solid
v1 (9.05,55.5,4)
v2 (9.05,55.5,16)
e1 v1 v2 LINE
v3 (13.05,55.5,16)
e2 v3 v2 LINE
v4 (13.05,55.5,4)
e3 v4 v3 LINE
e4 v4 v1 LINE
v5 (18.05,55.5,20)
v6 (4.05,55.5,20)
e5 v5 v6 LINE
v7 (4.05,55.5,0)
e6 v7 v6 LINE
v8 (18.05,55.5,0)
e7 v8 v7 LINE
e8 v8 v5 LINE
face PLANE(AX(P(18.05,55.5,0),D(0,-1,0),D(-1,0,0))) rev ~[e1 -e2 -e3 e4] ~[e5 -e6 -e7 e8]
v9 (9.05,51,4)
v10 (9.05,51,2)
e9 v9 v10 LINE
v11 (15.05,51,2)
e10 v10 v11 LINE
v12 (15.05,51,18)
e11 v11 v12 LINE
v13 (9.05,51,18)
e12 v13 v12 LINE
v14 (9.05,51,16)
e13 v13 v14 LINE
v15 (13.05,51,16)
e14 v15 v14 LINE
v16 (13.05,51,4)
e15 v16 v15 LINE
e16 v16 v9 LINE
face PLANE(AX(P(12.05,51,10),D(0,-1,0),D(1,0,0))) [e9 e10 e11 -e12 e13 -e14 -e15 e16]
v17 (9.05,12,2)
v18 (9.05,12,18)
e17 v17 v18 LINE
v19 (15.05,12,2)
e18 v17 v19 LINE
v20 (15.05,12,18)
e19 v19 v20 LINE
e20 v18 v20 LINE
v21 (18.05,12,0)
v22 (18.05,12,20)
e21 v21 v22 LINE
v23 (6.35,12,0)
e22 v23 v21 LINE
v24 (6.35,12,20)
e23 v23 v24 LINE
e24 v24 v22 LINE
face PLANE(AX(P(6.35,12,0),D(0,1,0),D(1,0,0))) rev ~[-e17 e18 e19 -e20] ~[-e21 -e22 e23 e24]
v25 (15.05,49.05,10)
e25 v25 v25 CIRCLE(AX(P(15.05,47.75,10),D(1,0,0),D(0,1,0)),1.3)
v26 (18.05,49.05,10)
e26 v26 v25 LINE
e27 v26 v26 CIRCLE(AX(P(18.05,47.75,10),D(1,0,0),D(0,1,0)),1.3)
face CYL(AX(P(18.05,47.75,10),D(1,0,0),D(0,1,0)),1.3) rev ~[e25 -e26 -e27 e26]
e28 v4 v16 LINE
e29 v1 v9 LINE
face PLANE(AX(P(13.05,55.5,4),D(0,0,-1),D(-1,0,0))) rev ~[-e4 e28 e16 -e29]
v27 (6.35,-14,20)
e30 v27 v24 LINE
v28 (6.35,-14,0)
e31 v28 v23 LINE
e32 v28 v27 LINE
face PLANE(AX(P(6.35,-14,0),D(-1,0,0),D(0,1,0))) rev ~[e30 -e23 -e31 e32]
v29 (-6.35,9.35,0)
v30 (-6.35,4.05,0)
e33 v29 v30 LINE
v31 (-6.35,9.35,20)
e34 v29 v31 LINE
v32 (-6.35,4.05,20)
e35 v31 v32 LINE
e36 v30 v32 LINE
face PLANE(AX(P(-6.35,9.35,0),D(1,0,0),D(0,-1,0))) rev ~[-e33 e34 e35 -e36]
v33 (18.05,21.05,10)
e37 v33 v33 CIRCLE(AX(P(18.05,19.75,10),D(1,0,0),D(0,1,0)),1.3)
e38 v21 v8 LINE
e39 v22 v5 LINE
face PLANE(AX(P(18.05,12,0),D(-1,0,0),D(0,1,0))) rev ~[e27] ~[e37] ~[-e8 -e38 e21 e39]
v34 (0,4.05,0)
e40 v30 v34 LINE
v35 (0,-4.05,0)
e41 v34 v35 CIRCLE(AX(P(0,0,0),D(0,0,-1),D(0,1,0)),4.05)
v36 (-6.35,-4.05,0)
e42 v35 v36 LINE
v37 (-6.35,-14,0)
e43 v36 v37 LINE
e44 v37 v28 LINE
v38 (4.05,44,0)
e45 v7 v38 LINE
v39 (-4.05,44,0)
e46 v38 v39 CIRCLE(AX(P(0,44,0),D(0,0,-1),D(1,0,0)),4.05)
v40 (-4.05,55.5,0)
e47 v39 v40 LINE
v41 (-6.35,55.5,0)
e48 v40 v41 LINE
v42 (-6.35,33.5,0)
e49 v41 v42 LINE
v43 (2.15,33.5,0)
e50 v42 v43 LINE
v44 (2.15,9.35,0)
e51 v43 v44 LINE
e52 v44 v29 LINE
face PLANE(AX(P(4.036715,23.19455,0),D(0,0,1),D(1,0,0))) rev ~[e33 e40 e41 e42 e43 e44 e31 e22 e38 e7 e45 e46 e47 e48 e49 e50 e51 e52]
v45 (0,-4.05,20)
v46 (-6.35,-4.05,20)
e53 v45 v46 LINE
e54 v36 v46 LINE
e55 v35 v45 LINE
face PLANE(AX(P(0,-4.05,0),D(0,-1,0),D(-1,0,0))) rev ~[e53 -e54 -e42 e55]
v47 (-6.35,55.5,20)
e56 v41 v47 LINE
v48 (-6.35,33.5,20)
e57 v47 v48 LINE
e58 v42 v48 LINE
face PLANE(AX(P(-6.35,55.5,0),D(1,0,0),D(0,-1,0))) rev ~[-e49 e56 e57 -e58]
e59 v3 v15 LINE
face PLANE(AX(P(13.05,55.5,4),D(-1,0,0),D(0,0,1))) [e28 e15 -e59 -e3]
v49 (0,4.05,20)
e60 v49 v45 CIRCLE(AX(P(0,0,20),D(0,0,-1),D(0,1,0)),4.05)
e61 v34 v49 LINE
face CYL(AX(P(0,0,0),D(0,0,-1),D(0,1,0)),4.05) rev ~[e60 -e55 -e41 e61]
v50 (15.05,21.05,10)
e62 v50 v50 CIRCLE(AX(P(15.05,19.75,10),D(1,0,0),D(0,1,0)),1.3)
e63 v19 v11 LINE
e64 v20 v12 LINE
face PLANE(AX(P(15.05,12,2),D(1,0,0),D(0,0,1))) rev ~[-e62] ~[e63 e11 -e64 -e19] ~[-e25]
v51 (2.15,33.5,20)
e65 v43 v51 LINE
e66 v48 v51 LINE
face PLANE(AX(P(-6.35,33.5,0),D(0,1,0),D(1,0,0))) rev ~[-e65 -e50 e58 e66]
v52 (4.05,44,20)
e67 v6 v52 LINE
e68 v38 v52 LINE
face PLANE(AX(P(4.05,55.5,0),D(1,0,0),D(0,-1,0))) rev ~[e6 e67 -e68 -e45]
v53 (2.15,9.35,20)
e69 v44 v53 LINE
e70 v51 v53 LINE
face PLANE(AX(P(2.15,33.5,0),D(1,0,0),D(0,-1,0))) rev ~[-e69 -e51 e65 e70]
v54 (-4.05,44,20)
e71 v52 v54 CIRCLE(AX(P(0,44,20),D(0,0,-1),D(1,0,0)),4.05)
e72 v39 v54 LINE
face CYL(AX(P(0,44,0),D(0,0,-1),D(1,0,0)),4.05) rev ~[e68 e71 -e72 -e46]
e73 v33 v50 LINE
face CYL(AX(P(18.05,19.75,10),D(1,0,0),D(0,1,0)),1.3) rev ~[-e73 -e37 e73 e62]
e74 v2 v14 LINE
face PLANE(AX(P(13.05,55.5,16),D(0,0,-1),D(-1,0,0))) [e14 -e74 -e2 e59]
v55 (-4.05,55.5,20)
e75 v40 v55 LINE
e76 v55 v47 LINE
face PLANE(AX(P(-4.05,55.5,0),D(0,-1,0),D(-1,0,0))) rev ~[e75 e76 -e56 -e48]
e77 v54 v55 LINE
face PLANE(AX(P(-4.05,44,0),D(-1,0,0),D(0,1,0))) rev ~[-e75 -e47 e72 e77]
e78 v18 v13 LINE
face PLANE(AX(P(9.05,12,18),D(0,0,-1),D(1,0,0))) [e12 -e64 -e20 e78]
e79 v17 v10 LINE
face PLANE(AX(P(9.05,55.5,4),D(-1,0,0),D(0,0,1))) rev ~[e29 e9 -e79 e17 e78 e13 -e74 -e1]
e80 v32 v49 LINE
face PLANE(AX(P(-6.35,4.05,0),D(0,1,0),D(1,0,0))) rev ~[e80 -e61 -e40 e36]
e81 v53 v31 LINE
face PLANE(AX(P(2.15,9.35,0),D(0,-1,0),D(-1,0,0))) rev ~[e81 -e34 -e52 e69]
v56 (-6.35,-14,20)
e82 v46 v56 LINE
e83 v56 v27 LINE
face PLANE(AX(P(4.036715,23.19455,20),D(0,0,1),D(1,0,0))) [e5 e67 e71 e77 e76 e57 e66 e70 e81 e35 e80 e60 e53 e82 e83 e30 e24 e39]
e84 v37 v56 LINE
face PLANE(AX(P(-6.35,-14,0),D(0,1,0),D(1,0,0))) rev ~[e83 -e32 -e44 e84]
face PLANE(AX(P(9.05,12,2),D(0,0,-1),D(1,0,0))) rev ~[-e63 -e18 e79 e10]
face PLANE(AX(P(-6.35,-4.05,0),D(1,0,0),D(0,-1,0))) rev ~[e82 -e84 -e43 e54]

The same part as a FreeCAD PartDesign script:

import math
import FreeCAD as App
import Part
import Sketcher

V = App.Vector
Q = App.Units.Quantity


def add_polygon(sketch, points):
    """Adds a closed chain of lines whose ends are joined by coincident constraints."""
    first, n = sketch.GeometryCount, len(points)
    for a, b in zip(points, points[1:] + points[:1]):
        sketch.addGeometry(Part.LineSegment(App.Vector(*a, 0), App.Vector(*b, 0)), False)
    for i in range(n):
        sketch.addConstraint(Sketcher.Constraint("Coincident", first + i, 2, first + (i + 1) % n, 1))

doc = App.newDocument("Part")
body = doc.addObject("PartDesign::Body", "Body")

sketch1 = body.newObject("Sketcher::SketchObject", "Sketch")
sketch1.AttachmentSupport = (doc.getObject("XY_Plane"), [""])
sketch1.MapMode = "FlatFace"
sketch1.addGeometry(Part.ArcOfCircle(Part.Circle(V(0, 0, 0), V(0, 0, 1), 4), math.radians(-90), math.radians(90)), False)
sketch1.addGeometry(Part.LineSegment(V(0, -4, 0), V(-6.3, -4, 0)), False)
sketch1.addGeometry(Part.LineSegment(V(-6.3, -4, 0), V(-6.3, -14, 0)), False)
sketch1.addGeometry(Part.LineSegment(V(-6.3, -14, 0), V(6.3, -14, 0)), False)
sketch1.addGeometry(Part.LineSegment(V(6.3, -14, 0), V(6.3, 12, 0)), False)
sketch1.addGeometry(Part.LineSegment(V(6.3, 12, 0), V(18.1, 12, 0)), False)
sketch1.addGeometry(Part.LineSegment(V(18.1, 12, 0), V(18.1, 55.5, 0)), False)
sketch1.addGeometry(Part.LineSegment(V(18.1, 55.5, 0), V(4, 55.5, 0)), False)
sketch1.addGeometry(Part.LineSegment(V(4, 55.5, 0), V(4, 44, 0)), False)
sketch1.addGeometry(Part.ArcOfCircle(Part.Circle(V(0, 44, 0), V(0, 0, 1), 4), math.radians(180), math.radians(360)), False)
sketch1.addGeometry(Part.LineSegment(V(-4, 44, 0), V(-4, 55.5, 0)), False)
sketch1.addGeometry(Part.LineSegment(V(-4, 55.5, 0), V(-6.3, 55.5, 0)), False)
sketch1.addGeometry(Part.LineSegment(V(-6.3, 55.5, 0), V(-6.3, 33.5, 0)), False)
sketch1.addGeometry(Part.LineSegment(V(-6.3, 33.5, 0), V(2.1, 33.5, 0)), False)
sketch1.addGeometry(Part.LineSegment(V(2.1, 33.5, 0), V(2.1, 9.3, 0)), False)
sketch1.addGeometry(Part.LineSegment(V(2.1, 9.3, 0), V(-6.3, 9.3, 0)), False)
sketch1.addGeometry(Part.LineSegment(V(-6.3, 9.3, 0), V(-6.3, 4, 0)), False)
sketch1.addGeometry(Part.LineSegment(V(-6.3, 4, 0), V(0, 4, 0)), False)
sketch1.addConstraint(Sketcher.Constraint("Tangent", 0, 1, 1, 1))
sketch1.addConstraint(Sketcher.Constraint("Coincident", 1, 2, 2, 1))
sketch1.addConstraint(Sketcher.Constraint("Coincident", 2, 2, 3, 1))
sketch1.addConstraint(Sketcher.Constraint("Coincident", 3, 2, 4, 1))
sketch1.addConstraint(Sketcher.Constraint("Coincident", 4, 2, 5, 1))
sketch1.addConstraint(Sketcher.Constraint("Coincident", 5, 2, 6, 1))
sketch1.addConstraint(Sketcher.Constraint("Coincident", 6, 2, 7, 1))
sketch1.addConstraint(Sketcher.Constraint("Coincident", 7, 2, 8, 1))
sketch1.addConstraint(Sketcher.Constraint("Tangent", 8, 2, 9, 2))
sketch1.addConstraint(Sketcher.Constraint("Tangent", 9, 1, 10, 1))
sketch1.addConstraint(Sketcher.Constraint("Coincident", 10, 2, 11, 1))
sketch1.addConstraint(Sketcher.Constraint("Coincident", 11, 2, 12, 1))
sketch1.addConstraint(Sketcher.Constraint("Coincident", 12, 2, 13, 1))
sketch1.addConstraint(Sketcher.Constraint("Coincident", 13, 2, 14, 1))
sketch1.addConstraint(Sketcher.Constraint("Coincident", 14, 2, 15, 1))
sketch1.addConstraint(Sketcher.Constraint("Coincident", 15, 2, 16, 1))
sketch1.addConstraint(Sketcher.Constraint("Coincident", 16, 2, 17, 1))
sketch1.addConstraint(Sketcher.Constraint("Tangent", 17, 2, 0, 2))
sketch1.addConstraint(Sketcher.Constraint("Horizontal", 1))
sketch1.addConstraint(Sketcher.Constraint("Vertical", 2))
sketch1.addConstraint(Sketcher.Constraint("Horizontal", 3))
sketch1.addConstraint(Sketcher.Constraint("Vertical", 4))
sketch1.addConstraint(Sketcher.Constraint("Horizontal", 5))
sketch1.addConstraint(Sketcher.Constraint("Vertical", 6))
sketch1.addConstraint(Sketcher.Constraint("Horizontal", 7))
sketch1.addConstraint(Sketcher.Constraint("Vertical", 8))
sketch1.addConstraint(Sketcher.Constraint("Vertical", 10))
sketch1.addConstraint(Sketcher.Constraint("Horizontal", 11))
sketch1.addConstraint(Sketcher.Constraint("Vertical", 12))
sketch1.addConstraint(Sketcher.Constraint("Horizontal", 13))
sketch1.addConstraint(Sketcher.Constraint("Vertical", 14))
sketch1.addConstraint(Sketcher.Constraint("Horizontal", 15))
sketch1.addConstraint(Sketcher.Constraint("Vertical", 16))
sketch1.addConstraint(Sketcher.Constraint("Horizontal", 17))
sketch1.addConstraint(Sketcher.Constraint("Coincident", 0, 3, -1, 1))
sketch1.addConstraint(Sketcher.Constraint("Equal", 0, 9))
sketch1.addConstraint(Sketcher.Constraint("Symmetric", 7, 2, 10, 2, -2))
sketch1.addConstraint(Sketcher.Constraint("Vertical", 2, 2, 11, 2))
sketch1.addConstraint(Sketcher.Constraint("Vertical", 12, 2, 15, 2))
sketch1.addConstraint(Sketcher.Constraint("DistanceX", 7, 2, 7, 1, Q("14 mm")))
sketch1.addConstraint(Sketcher.Constraint("DistanceY", 4, 1, 4, 2, Q("26 mm")))
sketch1.addConstraint(Sketcher.Constraint("DistanceY", 12, 2, 12, 1, Q("22 mm")))
sketch1.addConstraint(Sketcher.Constraint("Radius", 0, Q("4.05 mm")))
sketch1.addConstraint(Sketcher.Constraint("DistanceX", 3, 1, 3, 2, Q("12.7 mm")))
sketch1.addConstraint(Sketcher.Constraint("DistanceX", 5, 1, 5, 2, Q("11.7 mm")))
sketch1.addConstraint(Sketcher.Constraint("DistanceX", 13, 1, 13, 2, Q("8.5 mm")))
sketch1.addConstraint(Sketcher.Constraint("DistanceY", 6, 1, 6, 2, Q("43.5 mm")))
sketch1.addConstraint(Sketcher.Constraint("DistanceY", 8, 2, 8, 1, Q("11.5 mm")))
sketch1.addConstraint(Sketcher.Constraint("DistanceY", 16, 2, 16, 1, Q("5.3 mm")))
sketch1.addConstraint(Sketcher.Constraint("DistanceY", -1, 1, 9, 3, Q("44 mm")))
pad1 = body.newObject("PartDesign::Pad", "Pad")
pad1.Profile = sketch1
pad1.Length = 20

sketch2 = body.newObject("Sketcher::SketchObject", "Sketch001")
sketch2.AttachmentSupport = (doc.getObject("XZ_Plane"), [""])
sketch2.MapMode = "FlatFace"
sketch2.AttachmentOffset = App.Placement(V(0, 0, -55.5), App.Rotation())
add_polygon(sketch2, [(13.1, 16), (13.1, 4), (9.1, 4), (9.1, 16)])
sketch2.addConstraint(Sketcher.Constraint("Vertical", 0))
sketch2.addConstraint(Sketcher.Constraint("Horizontal", 1))
sketch2.addConstraint(Sketcher.Constraint("Vertical", 2))
sketch2.addConstraint(Sketcher.Constraint("Horizontal", 3))
sketch2.addConstraint(Sketcher.Constraint("DistanceX", 1, 2, 1, 1, Q("4 mm")))
sketch2.addConstraint(Sketcher.Constraint("DistanceY", 0, 2, 0, 1, Q("12 mm")))
sketch2.addConstraint(Sketcher.Constraint("DistanceY", -1, 1, 0, 2, Q("4 mm")))
sketch2.addConstraint(Sketcher.Constraint("DistanceX", -1, 1, 0, 2, Q("13.05 mm")))
pocket1 = body.newObject("PartDesign::Pocket", "Pocket")
pocket1.Profile = sketch2
pocket1.Length = 59
pocket1.Reversed = True

sketch3 = body.newObject("Sketcher::SketchObject", "Sketch002")
sketch3.AttachmentSupport = (doc.getObject("XZ_Plane"), [""])
sketch3.MapMode = "FlatFace"
sketch3.AttachmentOffset = App.Placement(V(0, 0, -12), App.Rotation())
add_polygon(sketch3, [(9, 2), (15, 2), (15, 18), (9, 18)])
sketch3.addConstraint(Sketcher.Constraint("Horizontal", 0))
sketch3.addConstraint(Sketcher.Constraint("Vertical", 1))
sketch3.addConstraint(Sketcher.Constraint("Horizontal", 2))
sketch3.addConstraint(Sketcher.Constraint("Vertical", 3))
sketch3.addConstraint(Sketcher.Constraint("DistanceX", 0, 1, 0, 2, Q("6 mm")))
sketch3.addConstraint(Sketcher.Constraint("DistanceY", 1, 1, 1, 2, Q("16 mm")))
sketch3.addConstraint(Sketcher.Constraint("DistanceY", -1, 1, 0, 2, Q("2 mm")))
sketch3.addConstraint(Sketcher.Constraint("DistanceX", -1, 1, 0, 2, Q("15.05 mm")))
pocket2 = body.newObject("PartDesign::Pocket", "Pocket001")
pocket2.Profile = sketch3
pocket2.Length = 39

sketch4 = body.newObject("Sketcher::SketchObject", "Sketch003")
sketch4.AttachmentSupport = (doc.getObject("YZ_Plane"), [""])
sketch4.MapMode = "FlatFace"
sketch4.AttachmentOffset = App.Placement(V(0, 0, 18.05), App.Rotation())
sketch4.addGeometry(Part.Circle(V(47.8, 10, 0), V(0, 0, 1), 1.3), False)
sketch4.addGeometry(Part.Circle(V(19.8, 10, 0), V(0, 0, 1), 1.3), False)
sketch4.addConstraint(Sketcher.Constraint("Equal", 0, 1))
sketch4.addConstraint(Sketcher.Constraint("Horizontal", 0, 3, 1, 3))
sketch4.addConstraint(Sketcher.Constraint("Diameter", 0, Q("2.6 mm")))
sketch4.addConstraint(Sketcher.Constraint("DistanceY", -1, 1, 0, 3, Q("10 mm")))
sketch4.addConstraint(Sketcher.Constraint("DistanceX", 1, 3, 0, 3, Q("28 mm")))
sketch4.addConstraint(Sketcher.Constraint("DistanceX", -1, 1, 0, 3, Q("47.75 mm")))
pocket3 = body.newObject("PartDesign::Pocket", "Pocket002")
pocket3.Profile = sketch4
pocket3.Length = 7.3

doc.recompute()
